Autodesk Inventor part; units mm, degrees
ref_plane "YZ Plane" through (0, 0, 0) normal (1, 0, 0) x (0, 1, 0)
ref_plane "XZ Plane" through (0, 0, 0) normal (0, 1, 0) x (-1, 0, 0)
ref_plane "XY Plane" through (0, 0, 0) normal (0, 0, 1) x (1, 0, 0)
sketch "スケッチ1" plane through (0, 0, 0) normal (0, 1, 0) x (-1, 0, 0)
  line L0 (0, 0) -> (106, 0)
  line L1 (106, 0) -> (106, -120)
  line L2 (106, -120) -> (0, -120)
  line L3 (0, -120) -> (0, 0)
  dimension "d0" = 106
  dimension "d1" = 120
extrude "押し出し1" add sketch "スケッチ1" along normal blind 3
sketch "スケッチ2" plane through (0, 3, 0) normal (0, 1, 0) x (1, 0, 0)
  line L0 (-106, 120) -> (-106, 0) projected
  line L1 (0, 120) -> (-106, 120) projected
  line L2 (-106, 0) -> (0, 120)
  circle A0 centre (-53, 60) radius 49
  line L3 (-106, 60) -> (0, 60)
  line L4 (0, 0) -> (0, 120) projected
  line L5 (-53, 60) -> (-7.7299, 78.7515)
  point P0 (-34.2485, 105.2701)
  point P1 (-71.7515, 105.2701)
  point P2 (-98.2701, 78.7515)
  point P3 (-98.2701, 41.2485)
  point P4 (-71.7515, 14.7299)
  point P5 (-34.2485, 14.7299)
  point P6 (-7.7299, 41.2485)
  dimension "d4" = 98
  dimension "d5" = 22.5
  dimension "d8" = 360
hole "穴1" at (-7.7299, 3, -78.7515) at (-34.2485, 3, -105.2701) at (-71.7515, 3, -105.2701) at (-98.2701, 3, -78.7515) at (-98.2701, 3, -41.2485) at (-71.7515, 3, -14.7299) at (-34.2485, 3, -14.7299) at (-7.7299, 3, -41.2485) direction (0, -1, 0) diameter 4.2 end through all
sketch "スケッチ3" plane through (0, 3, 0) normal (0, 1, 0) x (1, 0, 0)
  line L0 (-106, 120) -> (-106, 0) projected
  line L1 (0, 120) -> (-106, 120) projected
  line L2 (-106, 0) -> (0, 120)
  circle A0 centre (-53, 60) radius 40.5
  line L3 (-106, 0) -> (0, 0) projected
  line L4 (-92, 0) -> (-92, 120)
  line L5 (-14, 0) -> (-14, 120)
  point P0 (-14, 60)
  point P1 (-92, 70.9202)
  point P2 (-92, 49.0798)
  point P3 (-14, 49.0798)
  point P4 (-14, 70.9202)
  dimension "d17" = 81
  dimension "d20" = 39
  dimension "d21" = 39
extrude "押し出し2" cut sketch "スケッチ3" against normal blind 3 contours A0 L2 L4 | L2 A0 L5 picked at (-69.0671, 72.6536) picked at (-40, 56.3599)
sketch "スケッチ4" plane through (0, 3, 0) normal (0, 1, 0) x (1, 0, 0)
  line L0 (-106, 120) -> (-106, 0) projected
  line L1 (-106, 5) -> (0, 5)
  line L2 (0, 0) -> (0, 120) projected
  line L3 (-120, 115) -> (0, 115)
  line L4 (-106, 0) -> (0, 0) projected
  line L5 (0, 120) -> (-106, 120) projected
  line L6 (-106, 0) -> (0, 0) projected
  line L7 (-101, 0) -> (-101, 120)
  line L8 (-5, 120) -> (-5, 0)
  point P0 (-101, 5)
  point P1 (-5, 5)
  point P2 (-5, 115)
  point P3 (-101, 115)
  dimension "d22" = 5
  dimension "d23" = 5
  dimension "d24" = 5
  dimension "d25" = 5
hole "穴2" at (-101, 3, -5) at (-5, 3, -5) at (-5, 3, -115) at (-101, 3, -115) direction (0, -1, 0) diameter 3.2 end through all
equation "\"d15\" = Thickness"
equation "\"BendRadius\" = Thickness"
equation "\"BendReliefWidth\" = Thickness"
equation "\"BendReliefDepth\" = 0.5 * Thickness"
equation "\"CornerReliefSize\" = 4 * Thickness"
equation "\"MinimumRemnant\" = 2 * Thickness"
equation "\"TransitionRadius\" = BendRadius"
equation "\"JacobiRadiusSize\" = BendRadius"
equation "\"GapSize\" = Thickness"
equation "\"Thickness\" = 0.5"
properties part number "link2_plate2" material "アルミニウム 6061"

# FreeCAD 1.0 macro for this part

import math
import FreeCAD as App
import Part
import Sketcher

V = App.Vector
Q = App.Units.Quantity


def add_polygon(sketch, points):
    """Adds a closed chain of lines whose ends are joined by coincident constraints."""
    first, n = sketch.GeometryCount, len(points)
    for a, b in zip(points, points[1:] + points[:1]):
        sketch.addGeometry(Part.LineSegment(App.Vector(*a, 0), App.Vector(*b, 0)), False)
    for i in range(n):
        sketch.addConstraint(Sketcher.Constraint("Coincident", first + i, 2, first + (i + 1) % n, 1))

doc = App.newDocument("Part")
body = doc.addObject("PartDesign::Body", "Body")

# Sketch on XZ plane
sketch1 = body.newObject("Sketcher::SketchObject", "Sketch")
sketch1.AttachmentSupport = (doc.getObject("XZ_Plane"), [""])
sketch1.MapMode = "FlatFace"
add_polygon(sketch1, [(-106, 0), (0, 0), (0, -120), (-106, -120)])  # lines 0-3
sketch1.addConstraint(Sketcher.Constraint("Horizontal", 0))
sketch1.addConstraint(Sketcher.Constraint("Vertical", 1))
sketch1.addConstraint(Sketcher.Constraint("Horizontal", 2))
sketch1.addConstraint(Sketcher.Constraint("Vertical", 3))
sketch1.addConstraint(Sketcher.Constraint("Coincident", 0, 2, -1, 1))
sketch1.addConstraint(Sketcher.Constraint("DistanceX", 0, 1, 0, 2, Q("106 mm")))
sketch1.addConstraint(Sketcher.Constraint("DistanceY", 1, 2, 1, 1, Q("120 mm")))
pad1 = body.newObject("PartDesign::Pad", "Pad")
pad1.Profile = sketch1
pad1.Length = 3
pad1.Reversed = True

# Sketch on XZ plane
sketch2 = body.newObject("Sketcher::SketchObject", "Sketch001")
sketch2.AttachmentSupport = (doc.getObject("XZ_Plane"), [""])
sketch2.MapMode = "FlatFace"
sketch2.AttachmentOffset = App.Placement(V(0, 0, -3), App.Rotation())
sketch2.addGeometry(Part.Circle(V(-7.7299, -78.7515, 0), V(0, 0, 1), 2.1), False)
sketch2.addGeometry(Part.Circle(V(-34.2485, -105.2701, 0), V(0, 0, 1), 2.1), False)
sketch2.addGeometry(Part.Circle(V(-71.7515, -105.2701, 0), V(0, 0, 1), 2.1), False)
sketch2.addGeometry(Part.Circle(V(-98.2701, -78.7515, 0), V(0, 0, 1), 2.1), False)
sketch2.addGeometry(Part.Circle(V(-98.2701, -41.2485, 0), V(0, 0, 1), 2.1), False)
sketch2.addGeometry(Part.Circle(V(-71.7515, -14.7299, 0), V(0, 0, 1), 2.1), False)
sketch2.addGeometry(Part.Circle(V(-34.2485, -14.7299, 0), V(0, 0, 1), 2.1), False)
sketch2.addGeometry(Part.Circle(V(-7.7299, -41.2485, 0), V(0, 0, 1), 2.1), False)
sketch2.addConstraint(Sketcher.Constraint("Equal", 0, 1))
sketch2.addConstraint(Sketcher.Constraint("Equal", 1, 2))
sketch2.addConstraint(Sketcher.Constraint("Equal", 2, 3))
sketch2.addConstraint(Sketcher.Constraint("Equal", 3, 4))
sketch2.addConstraint(Sketcher.Constraint("Equal", 4, 5))
sketch2.addConstraint(Sketcher.Constraint("Equal", 5, 6))
sketch2.addConstraint(Sketcher.Constraint("Equal", 6, 7))
sketch2.addConstraint(Sketcher.Constraint("Horizontal", 1, 3, 2, 3))
sketch2.addConstraint(Sketcher.Constraint("Horizontal", 0, 3, 3, 3))
sketch2.addConstraint(Sketcher.Constraint("Horizontal", 5, 3, 6, 3))
sketch2.addConstraint(Sketcher.Constraint("Horizontal", 4, 3, 7, 3))
sketch2.addConstraint(Sketcher.Constraint("Vertical", 3, 3, 4, 3))
sketch2.addConstraint(Sketcher.Constraint("Vertical", 2, 3, 5, 3))
sketch2.addConstraint(Sketcher.Constraint("Vertical", 1, 3, 6, 3))
sketch2.addConstraint(Sketcher.Constraint("Vertical", 0, 3, 7, 3))
sketch2.addConstraint(Sketcher.Constraint("Diameter", 0, Q("4.2 mm")))
sketch2.addConstraint(Sketcher.Constraint("DistanceX", 0, 3, -1, 1, Q("7.73 mm")))
sketch2.addConstraint(Sketcher.Constraint("DistanceY", 1, 3, -1, 1, Q("105.27 mm")))
sketch2.addConstraint(Sketcher.Constraint("DistanceX", 3, 3, -1, 1, Q("98.27 mm")))
sketch2.addConstraint(Sketcher.Constraint("DistanceY", 5, 3, -1, 1, Q("14.73 mm")))
sketch2.addConstraint(Sketcher.Constraint("DistanceX", 2, 3, 1, 3, Q("37.503 mm")))
sketch2.addConstraint(Sketcher.Constraint("DistanceY", 3, 3, 4, 3, Q("37.503 mm")))
sketch2.addConstraint(Sketcher.Constraint("DistanceY", 0, 3, -1, 1, Q("78.7515 mm")))
sketch2.addConstraint(Sketcher.Constraint("DistanceX", 1, 3, -1, 1, Q("34.2485 mm")))
doc.recompute()
hole = body.newObject("PartDesign::Hole", "Hole")
hole.Profile = sketch2
hole.ThreadType = "None"
hole.Diameter = 4.2
hole.DepthType = "ThroughAll"
hole.Reversed = True

# Sketch on XZ plane
sketch3 = body.newObject("Sketcher::SketchObject", "Sketch002")
sketch3.AttachmentSupport = (doc.getObject("XZ_Plane"), [""])
sketch3.MapMode = "FlatFace"
sketch3.AttachmentOffset = App.Placement(V(0, 0, -3), App.Rotation())
sketch3.addGeometry(Part.LineSegment(V(-92, -70.920165, 0), V(-92, -49.079835, 0)), False)
sketch3.addGeometry(Part.ArcOfCircle(Part.Circle(V(-53, -60, 0), V(0, 0, 1), 40.5), math.radians(15.642471), math.radians(164.357529)), False)
sketch3.addGeometry(Part.LineSegment(V(-14, -49.079835, 0), V(-14, -70.920165, 0)), False)
sketch3.addGeometry(Part.ArcOfCircle(Part.Circle(V(-53, -60, 0), V(0, 0, 1), 40.5), math.radians(-164.357529), math.radians(-15.642471)), False)
sketch3.addConstraint(Sketcher.Constraint("Coincident", 0, 2, 1, 2))
sketch3.addConstraint(Sketcher.Constraint("Coincident", 1, 1, 2, 1))
sketch3.addConstraint(Sketcher.Constraint("Coincident", 2, 2, 3, 2))
sketch3.addConstraint(Sketcher.Constraint("Coincident", 3, 1, 0, 1))
sketch3.addConstraint(Sketcher.Constraint("Vertical", 0))
sketch3.addConstraint(Sketcher.Constraint("Vertical", 2))
sketch3.addConstraint(Sketcher.Constraint("Coincident", 3, 3, 1, 3))
sketch3.addConstraint(Sketcher.Constraint("Equal", 1, 3))
sketch3.addConstraint(Sketcher.Constraint("Horizontal", 0, 2, 1, 1))
sketch3.addConstraint(Sketcher.Constraint("Radius", 1, Q("40.5 mm")))
sketch3.addConstraint(Sketcher.Constraint("DistanceX", 0, 2, 1, 3, Q("39 mm")))
sketch3.addConstraint(Sketcher.Constraint("DistanceX", 1, 3, -1, 1, Q("53 mm")))
sketch3.addConstraint(Sketcher.Constraint("DistanceY", 1, 3, -1, 1, Q("60 mm")))
pocket1 = body.newObject("PartDesign::Pocket", "Pocket")
pocket1.Profile = sketch3
pocket1.Length = 3
pocket1.Reversed = True

# Sketch on XZ plane
sketch4 = body.newObject("Sketcher::SketchObject", "Sketch003")
sketch4.AttachmentSupport = (doc.getObject("XZ_Plane"), [""])
sketch4.MapMode = "FlatFace"
sketch4.AttachmentOffset = App.Placement(V(0, 0, -3), App.Rotation())
sketch4.addGeometry(Part.Circle(V(-101, -5, 0), V(0, 0, 1), 1.6), False)
sketch4.addGeometry(Part.Circle(V(-5, -5, 0), V(0, 0, 1), 1.6), False)
sketch4.addGeometry(Part.Circle(V(-5, -115, 0), V(0, 0, 1), 1.6), False)
sketch4.addGeometry(Part.Circle(V(-101, -115, 0), V(0, 0, 1), 1.6), False)
sketch4.addConstraint(Sketcher.Constraint("Equal", 0, 1))
sketch4.addConstraint(Sketcher.Constraint("Equal", 1, 2))
sketch4.addConstraint(Sketcher.Constraint("Equal", 2, 3))
sketch4.addConstraint(Sketcher.Constraint("Horizontal", 0, 3, 1, 3))
sketch4.addConstraint(Sketcher.Constraint("Horizontal", 2, 3, 3, 3))
sketch4.addConstraint(Sketcher.Constraint("Vertical", 1, 3, 2, 3))
sketch4.addConstraint(Sketcher.Constraint("Vertical", 0, 3, 3, 3))
sketch4.addConstraint(Sketcher.Constraint("Diameter", 0, Q("3.2 mm")))
sketch4.addConstraint(Sketcher.Constraint("DistanceX", 0, 3, -1, 1, Q("101 mm")))
sketch4.addConstraint(Sketcher.Constraint("DistanceY", 0, 3, -1, 1, Q("5 mm")))
sketch4.addConstraint(Sketcher.Constraint("DistanceX", 1, 3, -1, 1, Q("5 mm")))
sketch4.addConstraint(Sketcher.Constraint("DistanceY", 2, 3, -1, 1, Q("115 mm")))
doc.recompute()
hole2 = body.newObject("PartDesign::Hole", "Hole001")
hole2.Profile = sketch4
hole2.ThreadType = "None"
hole2.Diameter = 3.2
hole2.DepthType = "ThroughAll"
hole2.Reversed = True

doc.recompute()
